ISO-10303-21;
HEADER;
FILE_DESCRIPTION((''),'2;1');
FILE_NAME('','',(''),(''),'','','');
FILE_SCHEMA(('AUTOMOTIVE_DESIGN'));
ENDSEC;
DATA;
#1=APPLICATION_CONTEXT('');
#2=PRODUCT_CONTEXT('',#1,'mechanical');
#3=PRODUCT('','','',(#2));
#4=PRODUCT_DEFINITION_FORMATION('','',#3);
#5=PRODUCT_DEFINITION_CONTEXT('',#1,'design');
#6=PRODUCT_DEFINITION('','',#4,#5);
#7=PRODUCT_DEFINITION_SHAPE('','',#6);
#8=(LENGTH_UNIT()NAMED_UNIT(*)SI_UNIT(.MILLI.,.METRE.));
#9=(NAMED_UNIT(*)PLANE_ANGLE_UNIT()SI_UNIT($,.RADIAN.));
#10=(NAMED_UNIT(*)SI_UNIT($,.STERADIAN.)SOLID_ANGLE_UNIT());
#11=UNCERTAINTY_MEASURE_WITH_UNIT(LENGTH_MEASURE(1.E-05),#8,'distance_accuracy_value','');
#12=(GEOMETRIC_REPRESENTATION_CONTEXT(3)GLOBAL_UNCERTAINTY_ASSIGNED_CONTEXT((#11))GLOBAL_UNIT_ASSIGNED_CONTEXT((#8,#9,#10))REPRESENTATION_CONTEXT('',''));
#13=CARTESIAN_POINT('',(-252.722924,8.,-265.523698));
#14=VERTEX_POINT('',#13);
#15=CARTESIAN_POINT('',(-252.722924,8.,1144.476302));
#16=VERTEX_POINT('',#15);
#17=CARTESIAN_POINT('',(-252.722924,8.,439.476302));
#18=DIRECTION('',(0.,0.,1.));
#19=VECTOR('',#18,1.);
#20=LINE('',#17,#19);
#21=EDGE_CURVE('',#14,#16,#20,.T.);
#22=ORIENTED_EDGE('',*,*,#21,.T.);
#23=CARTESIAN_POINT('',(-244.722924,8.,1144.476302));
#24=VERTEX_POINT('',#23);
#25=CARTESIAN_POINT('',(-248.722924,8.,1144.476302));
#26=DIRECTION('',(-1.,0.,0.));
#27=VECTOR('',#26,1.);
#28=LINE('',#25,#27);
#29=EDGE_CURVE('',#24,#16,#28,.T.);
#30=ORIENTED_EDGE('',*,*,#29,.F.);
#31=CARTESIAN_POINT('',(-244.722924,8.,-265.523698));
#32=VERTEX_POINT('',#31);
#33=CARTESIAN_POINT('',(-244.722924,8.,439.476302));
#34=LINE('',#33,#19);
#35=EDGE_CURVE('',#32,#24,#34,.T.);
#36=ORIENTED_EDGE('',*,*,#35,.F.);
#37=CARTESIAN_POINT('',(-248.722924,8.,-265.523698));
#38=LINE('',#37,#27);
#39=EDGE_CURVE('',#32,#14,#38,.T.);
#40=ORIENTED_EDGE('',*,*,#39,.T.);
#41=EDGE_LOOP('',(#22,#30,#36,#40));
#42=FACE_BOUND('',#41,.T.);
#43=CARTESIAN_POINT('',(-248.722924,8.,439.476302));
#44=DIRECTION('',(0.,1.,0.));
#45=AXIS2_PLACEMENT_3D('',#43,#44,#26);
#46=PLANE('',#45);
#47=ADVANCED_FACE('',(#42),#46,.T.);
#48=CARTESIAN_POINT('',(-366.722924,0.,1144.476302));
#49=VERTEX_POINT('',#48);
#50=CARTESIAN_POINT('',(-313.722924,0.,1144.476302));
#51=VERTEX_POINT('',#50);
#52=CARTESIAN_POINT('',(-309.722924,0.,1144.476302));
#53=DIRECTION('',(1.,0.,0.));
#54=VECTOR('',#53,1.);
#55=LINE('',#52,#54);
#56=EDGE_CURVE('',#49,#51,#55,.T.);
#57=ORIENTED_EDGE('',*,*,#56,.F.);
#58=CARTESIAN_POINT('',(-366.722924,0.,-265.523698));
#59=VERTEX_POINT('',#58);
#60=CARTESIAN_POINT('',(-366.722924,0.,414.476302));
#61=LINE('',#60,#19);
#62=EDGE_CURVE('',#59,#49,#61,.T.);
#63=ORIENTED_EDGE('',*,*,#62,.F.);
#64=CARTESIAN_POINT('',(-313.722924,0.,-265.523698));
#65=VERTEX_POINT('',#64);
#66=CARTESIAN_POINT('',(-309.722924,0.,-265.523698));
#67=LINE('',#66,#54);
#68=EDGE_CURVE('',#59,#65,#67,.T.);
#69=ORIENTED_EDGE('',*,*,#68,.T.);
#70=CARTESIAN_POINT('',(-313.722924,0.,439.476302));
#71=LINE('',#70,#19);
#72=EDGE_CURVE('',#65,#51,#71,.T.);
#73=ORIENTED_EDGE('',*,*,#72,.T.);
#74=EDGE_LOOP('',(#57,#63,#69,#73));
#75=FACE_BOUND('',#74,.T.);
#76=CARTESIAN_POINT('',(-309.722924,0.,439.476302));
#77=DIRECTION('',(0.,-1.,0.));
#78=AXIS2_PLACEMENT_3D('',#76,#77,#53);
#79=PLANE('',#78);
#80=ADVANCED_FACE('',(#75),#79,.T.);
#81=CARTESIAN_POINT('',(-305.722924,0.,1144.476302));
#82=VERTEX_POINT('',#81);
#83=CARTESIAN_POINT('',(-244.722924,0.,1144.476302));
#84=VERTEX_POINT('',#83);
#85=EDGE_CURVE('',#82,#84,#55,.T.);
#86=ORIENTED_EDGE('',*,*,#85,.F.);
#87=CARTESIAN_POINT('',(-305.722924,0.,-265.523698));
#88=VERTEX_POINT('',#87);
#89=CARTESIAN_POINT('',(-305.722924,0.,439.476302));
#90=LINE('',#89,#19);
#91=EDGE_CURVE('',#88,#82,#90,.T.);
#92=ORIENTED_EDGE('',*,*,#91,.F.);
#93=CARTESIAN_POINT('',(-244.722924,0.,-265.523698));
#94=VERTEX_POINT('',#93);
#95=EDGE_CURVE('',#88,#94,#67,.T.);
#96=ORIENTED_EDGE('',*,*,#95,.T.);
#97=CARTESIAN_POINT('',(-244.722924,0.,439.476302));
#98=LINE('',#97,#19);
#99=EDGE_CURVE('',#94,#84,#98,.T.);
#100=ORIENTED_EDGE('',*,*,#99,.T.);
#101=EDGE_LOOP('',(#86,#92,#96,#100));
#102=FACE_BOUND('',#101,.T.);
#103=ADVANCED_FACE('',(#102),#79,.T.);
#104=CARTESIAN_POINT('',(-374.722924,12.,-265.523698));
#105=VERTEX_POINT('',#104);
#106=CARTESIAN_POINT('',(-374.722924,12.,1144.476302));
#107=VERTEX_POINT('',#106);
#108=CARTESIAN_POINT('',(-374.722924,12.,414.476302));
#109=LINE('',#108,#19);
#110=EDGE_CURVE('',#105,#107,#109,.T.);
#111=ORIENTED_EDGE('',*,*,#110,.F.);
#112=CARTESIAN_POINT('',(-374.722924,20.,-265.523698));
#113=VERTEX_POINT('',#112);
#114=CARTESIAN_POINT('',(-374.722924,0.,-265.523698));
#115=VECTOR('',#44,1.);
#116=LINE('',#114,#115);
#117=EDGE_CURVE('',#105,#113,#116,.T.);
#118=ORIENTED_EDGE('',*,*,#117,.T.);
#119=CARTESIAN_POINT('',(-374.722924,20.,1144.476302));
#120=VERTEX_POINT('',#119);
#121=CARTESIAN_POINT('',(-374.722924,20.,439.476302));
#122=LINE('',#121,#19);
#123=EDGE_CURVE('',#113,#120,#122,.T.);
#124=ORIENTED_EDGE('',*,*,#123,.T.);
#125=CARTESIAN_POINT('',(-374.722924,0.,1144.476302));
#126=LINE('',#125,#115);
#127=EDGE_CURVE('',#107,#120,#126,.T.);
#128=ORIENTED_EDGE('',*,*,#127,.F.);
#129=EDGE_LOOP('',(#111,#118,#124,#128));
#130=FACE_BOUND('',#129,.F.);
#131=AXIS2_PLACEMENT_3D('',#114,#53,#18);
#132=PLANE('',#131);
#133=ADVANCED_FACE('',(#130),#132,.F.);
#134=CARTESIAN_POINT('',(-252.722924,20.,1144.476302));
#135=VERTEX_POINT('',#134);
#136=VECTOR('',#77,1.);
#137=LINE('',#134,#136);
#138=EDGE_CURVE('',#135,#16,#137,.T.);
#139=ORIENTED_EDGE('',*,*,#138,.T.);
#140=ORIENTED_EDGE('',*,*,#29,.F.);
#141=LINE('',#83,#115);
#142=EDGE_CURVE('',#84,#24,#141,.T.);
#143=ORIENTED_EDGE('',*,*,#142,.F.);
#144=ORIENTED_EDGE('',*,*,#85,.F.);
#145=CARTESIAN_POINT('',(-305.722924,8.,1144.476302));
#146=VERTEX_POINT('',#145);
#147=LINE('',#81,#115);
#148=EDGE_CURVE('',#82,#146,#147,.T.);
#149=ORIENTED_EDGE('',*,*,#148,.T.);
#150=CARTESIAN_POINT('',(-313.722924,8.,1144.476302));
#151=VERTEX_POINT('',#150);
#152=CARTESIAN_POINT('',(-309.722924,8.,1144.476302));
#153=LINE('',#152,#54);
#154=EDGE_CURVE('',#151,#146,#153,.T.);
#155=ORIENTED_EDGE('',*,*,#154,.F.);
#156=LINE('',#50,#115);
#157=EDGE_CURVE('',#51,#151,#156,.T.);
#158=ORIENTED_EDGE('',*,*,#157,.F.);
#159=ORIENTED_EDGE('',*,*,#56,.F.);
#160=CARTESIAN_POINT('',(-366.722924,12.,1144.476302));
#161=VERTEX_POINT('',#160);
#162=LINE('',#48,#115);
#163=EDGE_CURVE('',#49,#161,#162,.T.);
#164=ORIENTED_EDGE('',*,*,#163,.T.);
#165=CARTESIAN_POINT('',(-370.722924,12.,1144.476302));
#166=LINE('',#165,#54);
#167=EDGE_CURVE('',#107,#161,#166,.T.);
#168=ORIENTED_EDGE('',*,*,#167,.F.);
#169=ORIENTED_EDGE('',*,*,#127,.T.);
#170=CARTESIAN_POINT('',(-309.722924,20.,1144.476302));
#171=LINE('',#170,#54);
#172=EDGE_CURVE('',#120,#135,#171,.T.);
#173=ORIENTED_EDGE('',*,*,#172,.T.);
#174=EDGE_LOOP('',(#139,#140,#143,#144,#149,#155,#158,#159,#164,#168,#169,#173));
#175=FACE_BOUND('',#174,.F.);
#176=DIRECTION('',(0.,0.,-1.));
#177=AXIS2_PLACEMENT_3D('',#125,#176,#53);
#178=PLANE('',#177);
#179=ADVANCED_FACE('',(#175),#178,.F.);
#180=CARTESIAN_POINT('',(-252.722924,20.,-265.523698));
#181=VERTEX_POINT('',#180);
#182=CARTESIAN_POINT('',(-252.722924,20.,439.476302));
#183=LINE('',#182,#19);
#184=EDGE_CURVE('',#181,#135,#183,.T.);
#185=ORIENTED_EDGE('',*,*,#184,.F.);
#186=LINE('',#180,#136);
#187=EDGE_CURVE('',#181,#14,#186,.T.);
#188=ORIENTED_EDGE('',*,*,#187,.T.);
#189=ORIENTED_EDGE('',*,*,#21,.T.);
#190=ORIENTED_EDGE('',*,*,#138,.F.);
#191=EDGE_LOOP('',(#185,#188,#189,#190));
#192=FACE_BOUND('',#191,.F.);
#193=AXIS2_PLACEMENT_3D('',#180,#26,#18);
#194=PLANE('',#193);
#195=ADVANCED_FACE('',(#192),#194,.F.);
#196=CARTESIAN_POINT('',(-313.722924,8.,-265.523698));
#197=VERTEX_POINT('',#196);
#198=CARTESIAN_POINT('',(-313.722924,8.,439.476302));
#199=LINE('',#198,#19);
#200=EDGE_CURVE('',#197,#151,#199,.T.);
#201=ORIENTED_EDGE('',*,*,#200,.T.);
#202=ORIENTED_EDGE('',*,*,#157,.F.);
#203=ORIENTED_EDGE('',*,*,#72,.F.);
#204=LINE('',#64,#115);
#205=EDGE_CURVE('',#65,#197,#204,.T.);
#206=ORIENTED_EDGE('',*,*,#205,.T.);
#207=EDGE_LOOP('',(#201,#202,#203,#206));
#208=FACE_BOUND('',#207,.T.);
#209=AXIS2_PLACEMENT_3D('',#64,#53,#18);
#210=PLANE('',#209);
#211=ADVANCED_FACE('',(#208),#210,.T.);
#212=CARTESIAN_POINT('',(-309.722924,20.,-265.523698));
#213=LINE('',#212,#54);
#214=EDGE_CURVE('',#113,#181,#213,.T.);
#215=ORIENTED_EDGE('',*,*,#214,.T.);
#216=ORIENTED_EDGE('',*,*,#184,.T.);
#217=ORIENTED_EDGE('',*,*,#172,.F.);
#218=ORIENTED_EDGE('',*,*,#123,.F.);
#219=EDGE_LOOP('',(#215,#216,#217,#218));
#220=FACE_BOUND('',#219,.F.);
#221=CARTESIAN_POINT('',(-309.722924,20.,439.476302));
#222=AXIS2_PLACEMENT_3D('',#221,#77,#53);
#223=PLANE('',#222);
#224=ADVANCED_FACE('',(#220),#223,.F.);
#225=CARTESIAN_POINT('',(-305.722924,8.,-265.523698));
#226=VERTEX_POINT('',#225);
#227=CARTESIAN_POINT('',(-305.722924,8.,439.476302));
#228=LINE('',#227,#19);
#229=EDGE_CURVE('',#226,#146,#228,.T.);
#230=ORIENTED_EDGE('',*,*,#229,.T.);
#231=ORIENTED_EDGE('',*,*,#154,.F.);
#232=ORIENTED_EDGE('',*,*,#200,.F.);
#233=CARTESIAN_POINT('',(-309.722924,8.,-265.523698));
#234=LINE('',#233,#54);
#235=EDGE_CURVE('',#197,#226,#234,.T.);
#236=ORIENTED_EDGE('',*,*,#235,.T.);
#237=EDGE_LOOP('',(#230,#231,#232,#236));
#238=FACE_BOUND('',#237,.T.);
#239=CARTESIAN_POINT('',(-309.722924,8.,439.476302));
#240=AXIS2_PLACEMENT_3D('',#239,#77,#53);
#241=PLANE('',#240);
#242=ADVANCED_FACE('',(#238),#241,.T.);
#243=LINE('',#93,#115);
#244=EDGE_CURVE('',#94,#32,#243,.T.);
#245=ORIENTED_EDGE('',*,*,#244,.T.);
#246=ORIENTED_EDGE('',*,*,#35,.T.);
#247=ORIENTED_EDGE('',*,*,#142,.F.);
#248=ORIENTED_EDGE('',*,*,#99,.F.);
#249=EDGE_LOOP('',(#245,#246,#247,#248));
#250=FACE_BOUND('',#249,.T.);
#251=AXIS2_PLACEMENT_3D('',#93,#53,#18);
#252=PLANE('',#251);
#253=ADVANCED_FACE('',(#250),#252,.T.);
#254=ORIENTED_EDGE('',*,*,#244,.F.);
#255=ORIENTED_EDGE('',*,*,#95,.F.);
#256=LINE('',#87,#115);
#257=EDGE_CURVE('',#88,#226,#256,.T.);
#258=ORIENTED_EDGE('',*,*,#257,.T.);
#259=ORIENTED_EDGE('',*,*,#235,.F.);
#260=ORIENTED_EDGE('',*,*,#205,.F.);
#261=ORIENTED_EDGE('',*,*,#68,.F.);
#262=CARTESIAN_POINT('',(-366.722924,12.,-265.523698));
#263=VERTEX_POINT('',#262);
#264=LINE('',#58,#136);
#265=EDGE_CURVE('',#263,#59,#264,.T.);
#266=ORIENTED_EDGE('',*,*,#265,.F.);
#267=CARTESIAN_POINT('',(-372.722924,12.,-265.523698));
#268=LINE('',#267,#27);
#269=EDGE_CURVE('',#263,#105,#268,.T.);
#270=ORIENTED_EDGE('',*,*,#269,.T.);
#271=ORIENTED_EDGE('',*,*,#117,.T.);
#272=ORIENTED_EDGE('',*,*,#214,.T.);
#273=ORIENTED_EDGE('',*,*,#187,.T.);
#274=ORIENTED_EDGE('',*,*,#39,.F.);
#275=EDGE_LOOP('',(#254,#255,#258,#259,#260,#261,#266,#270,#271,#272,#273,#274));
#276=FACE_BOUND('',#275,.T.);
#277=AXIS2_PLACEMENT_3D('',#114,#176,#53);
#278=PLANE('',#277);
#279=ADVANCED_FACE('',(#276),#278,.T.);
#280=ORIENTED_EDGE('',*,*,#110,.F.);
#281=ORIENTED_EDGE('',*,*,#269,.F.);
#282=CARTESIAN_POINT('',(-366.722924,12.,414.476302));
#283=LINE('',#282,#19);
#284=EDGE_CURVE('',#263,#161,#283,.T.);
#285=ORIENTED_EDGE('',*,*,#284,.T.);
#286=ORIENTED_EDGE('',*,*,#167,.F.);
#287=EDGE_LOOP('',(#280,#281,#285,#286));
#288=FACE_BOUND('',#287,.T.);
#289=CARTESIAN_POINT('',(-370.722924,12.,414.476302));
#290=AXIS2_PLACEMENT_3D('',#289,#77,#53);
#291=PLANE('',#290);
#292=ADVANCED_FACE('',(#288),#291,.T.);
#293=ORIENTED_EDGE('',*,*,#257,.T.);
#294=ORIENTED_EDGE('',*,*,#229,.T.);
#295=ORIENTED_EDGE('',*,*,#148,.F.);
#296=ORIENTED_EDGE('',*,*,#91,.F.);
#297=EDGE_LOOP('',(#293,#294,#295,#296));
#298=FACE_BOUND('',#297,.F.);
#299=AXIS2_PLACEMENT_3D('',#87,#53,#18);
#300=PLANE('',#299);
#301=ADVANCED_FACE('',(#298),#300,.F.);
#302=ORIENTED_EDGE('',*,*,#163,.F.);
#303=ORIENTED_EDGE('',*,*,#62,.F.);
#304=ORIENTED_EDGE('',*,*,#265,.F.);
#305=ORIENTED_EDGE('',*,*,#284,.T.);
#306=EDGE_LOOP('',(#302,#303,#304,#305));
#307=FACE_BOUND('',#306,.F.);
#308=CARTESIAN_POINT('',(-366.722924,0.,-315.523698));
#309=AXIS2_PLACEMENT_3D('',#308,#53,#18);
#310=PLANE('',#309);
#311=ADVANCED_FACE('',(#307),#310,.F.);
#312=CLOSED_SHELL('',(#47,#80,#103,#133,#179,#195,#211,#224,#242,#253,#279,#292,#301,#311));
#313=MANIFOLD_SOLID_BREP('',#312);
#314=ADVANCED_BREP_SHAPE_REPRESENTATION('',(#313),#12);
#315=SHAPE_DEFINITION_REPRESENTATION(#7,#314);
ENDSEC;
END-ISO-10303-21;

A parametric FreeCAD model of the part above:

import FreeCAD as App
import Part
import Sketcher

V = App.Vector

doc = App.newDocument("Part")
body = doc.addObject("PartDesign::Body", "Body")

# Sketch on XZ plane
sketch1 = body.newObject("Sketcher::SketchObject", "Sketch")
sketch1.AttachmentSupport = (doc.getObject("XZ_Plane"), [""])
sketch1.MapMode = "FlatFace"
sketch1.addGeometry(Part.LineSegment(V(-375, 1144, 0), V(-375, -266, 0)), False)
sketch1.addGeometry(Part.LineSegment(V(-375, -266, 0), V(-245, -266, 0)), False)
sketch1.addGeometry(Part.LineSegment(V(-245, -266, 0), V(-245, 1144, 0)), False)
sketch1.addGeometry(Part.LineSegment(V(-245, 1144, 0), V(-375, 1144, 0)), False)
sketch1.addConstraint(Sketcher.Constraint("Coincident", 0, 2, 1, 1))
sketch1.addConstraint(Sketcher.Constraint("Coincident", 1, 2, 2, 1))
sketch1.addConstraint(Sketcher.Constraint("Coincident", 2, 2, 3, 1))
sketch1.addConstraint(Sketcher.Constraint("Coincident", 3, 2, 0, 1))
sketch1.addConstraint(Sketcher.Constraint("Vertical", 0))
sketch1.addConstraint(Sketcher.Constraint("Horizontal", 1))
sketch1.addConstraint(Sketcher.Constraint("Vertical", 2))
sketch1.addConstraint(Sketcher.Constraint("Horizontal", 3))
sketch1.addConstraint(Sketcher.Constraint("DistanceX", 1, 1, 1, 2, 130.0))
sketch1.addConstraint(Sketcher.Constraint("DistanceY", 0, 2, 0, 1, 1410.0))
sketch1.addConstraint(Sketcher.Constraint("DistanceY", 0, 2, -1, 1, 265.523698))
sketch1.addConstraint(Sketcher.Constraint("DistanceX", 0, 2, -1, 1, 374.722924))
pad1 = body.newObject("PartDesign::Pad", "Pad")
pad1.Profile = sketch1
pad1.Length = 20
pad1.Reversed = True

# Sketch on XZ plane
sketch2 = body.newObject("Sketcher::SketchObject", "Sketch001")
sketch2.AttachmentSupport = (doc.getObject("XZ_Plane"), [""])
sketch2.MapMode = "FlatFace"
sketch2.addGeometry(Part.LineSegment(V(-314, 1144, 0), V(-314, -266, 0)), False)
sketch2.addGeometry(Part.LineSegment(V(-314, -266, 0), V(-306, -266, 0)), False)
sketch2.addGeometry(Part.LineSegment(V(-306, -266, 0), V(-306, 1144, 0)), False)
sketch2.addGeometry(Part.LineSegment(V(-306, 1144, 0), V(-314, 1144, 0)), False)
sketch2.addConstraint(Sketcher.Constraint("Coincident", 0, 2, 1, 1))
sketch2.addConstraint(Sketcher.Constraint("Coincident", 1, 2, 2, 1))
sketch2.addConstraint(Sketcher.Constraint("Coincident", 2, 2, 3, 1))
sketch2.addConstraint(Sketcher.Constraint("Coincident", 3, 2, 0, 1))
sketch2.addConstraint(Sketcher.Constraint("Vertical", 0))
sketch2.addConstraint(Sketcher.Constraint("Horizontal", 1))
sketch2.addConstraint(Sketcher.Constraint("Vertical", 2))
sketch2.addConstraint(Sketcher.Constraint("Horizontal", 3))
sketch2.addConstraint(Sketcher.Constraint("DistanceX", 1, 1, 1, 2, 8.0))
sketch2.addConstraint(Sketcher.Constraint("DistanceY", 0, 2, 0, 1, 1410.0))
sketch2.addConstraint(Sketcher.Constraint("DistanceY", 0, 2, -1, 1, 265.523698))
sketch2.addConstraint(Sketcher.Constraint("DistanceX", 0, 2, -1, 1, 313.722924))
pocket1 = body.newObject("PartDesign::Pocket", "Pocket")
pocket1.Profile = sketch2
pocket1.Length = 8

# Sketch on XZ plane
sketch3 = body.newObject("Sketcher::SketchObject", "Sketch002")
sketch3.AttachmentSupport = (doc.getObject("XZ_Plane"), [""])
sketch3.MapMode = "FlatFace"
sketch3.addGeometry(Part.LineSegment(V(-375, 1144, 0), V(-375, -316, 0)), False)
sketch3.addGeometry(Part.LineSegment(V(-375, -316, 0), V(-367, -316, 0)), False)
sketch3.addGeometry(Part.LineSegment(V(-367, -316, 0), V(-367, 1144, 0)), False)
sketch3.addGeometry(Part.LineSegment(V(-367, 1144, 0), V(-375, 1144, 0)), False)
sketch3.addConstraint(Sketcher.Constraint("Coincident", 0, 2, 1, 1))
sketch3.addConstraint(Sketcher.Constraint("Coincident", 1, 2, 2, 1))
sketch3.addConstraint(Sketcher.Constraint("Coincident", 2, 2, 3, 1))
sketch3.addConstraint(Sketcher.Constraint("Coincident", 3, 2, 0, 1))
sketch3.addConstraint(Sketcher.Constraint("Vertical", 0))
sketch3.addConstraint(Sketcher.Constraint("Horizontal", 1))
sketch3.addConstraint(Sketcher.Constraint("Vertical", 2))
sketch3.addConstraint(Sketcher.Constraint("Horizontal", 3))
sketch3.addConstraint(Sketcher.Constraint("DistanceX", 1, 1, 1, 2, 8.0))
sketch3.addConstraint(Sketcher.Constraint("DistanceY", 0, 2, 0, 1, 1460.0))
sketch3.addConstraint(Sketcher.Constraint("DistanceY", 0, 2, -1, 1, 315.523698))
sketch3.addConstraint(Sketcher.Constraint("DistanceX", 0, 2, -1, 1, 374.722924))
pocket2 = body.newObject("PartDesign::Pocket", "Pocket001")
pocket2.Profile = sketch3
pocket2.Length = 12

# Sketch on XZ plane
sketch4 = body.newObject("Sketcher::SketchObject", "Sketch003")
sketch4.AttachmentSupport = (doc.getObject("XZ_Plane"), [""])
sketch4.MapMode = "FlatFace"
sketch4.AttachmentOffset = App.Placement(V(0, 0, -20), App.Rotation())
sketch4.addGeometry(Part.LineSegment(V(-245, 1144, 0), V(-245, -266, 0)), False)
sketch4.addGeometry(Part.LineSegment(V(-245, -266, 0), V(-253, -266, 0)), False)
sketch4.addGeometry(Part.LineSegment(V(-253, -266, 0), V(-253, 1144, 0)), False)
sketch4.addGeometry(Part.LineSegment(V(-253, 1144, 0), V(-245, 1144, 0)), False)
sketch4.addConstraint(Sketcher.Constraint("Coincident", 0, 2, 1, 1))
sketch4.addConstraint(Sketcher.Constraint("Coincident", 1, 2, 2, 1))
sketch4.addConstraint(Sketcher.Constraint("Coincident", 2, 2, 3, 1))
sketch4.addConstraint(Sketcher.Constraint("Coincident", 3, 2, 0, 1))
sketch4.addConstraint(Sketcher.Constraint("Vertical", 0))
sketch4.addConstraint(Sketcher.Constraint("Horizontal", 1))
sketch4.addConstraint(Sketcher.Constraint("Vertical", 2))
sketch4.addConstraint(Sketcher.Constraint("Horizontal", 3))
sketch4.addConstraint(Sketcher.Constraint("DistanceX", 1, 2, 1, 1, 8.0))
sketch4.addConstraint(Sketcher.Constraint("DistanceY", 0, 2, 0, 1, 1410.0))
sketch4.addConstraint(Sketcher.Constraint("DistanceY", 0, 2, -1, 1, 265.523698))
sketch4.addConstraint(Sketcher.Constraint("DistanceX", 0, 2, -1, 1, 244.722924))
pocket3 = body.newObject("PartDesign::Pocket", "Pocket002")
pocket3.Profile = sketch4
pocket3.Length = 12
pocket3.Reversed = True

doc.recompute()
